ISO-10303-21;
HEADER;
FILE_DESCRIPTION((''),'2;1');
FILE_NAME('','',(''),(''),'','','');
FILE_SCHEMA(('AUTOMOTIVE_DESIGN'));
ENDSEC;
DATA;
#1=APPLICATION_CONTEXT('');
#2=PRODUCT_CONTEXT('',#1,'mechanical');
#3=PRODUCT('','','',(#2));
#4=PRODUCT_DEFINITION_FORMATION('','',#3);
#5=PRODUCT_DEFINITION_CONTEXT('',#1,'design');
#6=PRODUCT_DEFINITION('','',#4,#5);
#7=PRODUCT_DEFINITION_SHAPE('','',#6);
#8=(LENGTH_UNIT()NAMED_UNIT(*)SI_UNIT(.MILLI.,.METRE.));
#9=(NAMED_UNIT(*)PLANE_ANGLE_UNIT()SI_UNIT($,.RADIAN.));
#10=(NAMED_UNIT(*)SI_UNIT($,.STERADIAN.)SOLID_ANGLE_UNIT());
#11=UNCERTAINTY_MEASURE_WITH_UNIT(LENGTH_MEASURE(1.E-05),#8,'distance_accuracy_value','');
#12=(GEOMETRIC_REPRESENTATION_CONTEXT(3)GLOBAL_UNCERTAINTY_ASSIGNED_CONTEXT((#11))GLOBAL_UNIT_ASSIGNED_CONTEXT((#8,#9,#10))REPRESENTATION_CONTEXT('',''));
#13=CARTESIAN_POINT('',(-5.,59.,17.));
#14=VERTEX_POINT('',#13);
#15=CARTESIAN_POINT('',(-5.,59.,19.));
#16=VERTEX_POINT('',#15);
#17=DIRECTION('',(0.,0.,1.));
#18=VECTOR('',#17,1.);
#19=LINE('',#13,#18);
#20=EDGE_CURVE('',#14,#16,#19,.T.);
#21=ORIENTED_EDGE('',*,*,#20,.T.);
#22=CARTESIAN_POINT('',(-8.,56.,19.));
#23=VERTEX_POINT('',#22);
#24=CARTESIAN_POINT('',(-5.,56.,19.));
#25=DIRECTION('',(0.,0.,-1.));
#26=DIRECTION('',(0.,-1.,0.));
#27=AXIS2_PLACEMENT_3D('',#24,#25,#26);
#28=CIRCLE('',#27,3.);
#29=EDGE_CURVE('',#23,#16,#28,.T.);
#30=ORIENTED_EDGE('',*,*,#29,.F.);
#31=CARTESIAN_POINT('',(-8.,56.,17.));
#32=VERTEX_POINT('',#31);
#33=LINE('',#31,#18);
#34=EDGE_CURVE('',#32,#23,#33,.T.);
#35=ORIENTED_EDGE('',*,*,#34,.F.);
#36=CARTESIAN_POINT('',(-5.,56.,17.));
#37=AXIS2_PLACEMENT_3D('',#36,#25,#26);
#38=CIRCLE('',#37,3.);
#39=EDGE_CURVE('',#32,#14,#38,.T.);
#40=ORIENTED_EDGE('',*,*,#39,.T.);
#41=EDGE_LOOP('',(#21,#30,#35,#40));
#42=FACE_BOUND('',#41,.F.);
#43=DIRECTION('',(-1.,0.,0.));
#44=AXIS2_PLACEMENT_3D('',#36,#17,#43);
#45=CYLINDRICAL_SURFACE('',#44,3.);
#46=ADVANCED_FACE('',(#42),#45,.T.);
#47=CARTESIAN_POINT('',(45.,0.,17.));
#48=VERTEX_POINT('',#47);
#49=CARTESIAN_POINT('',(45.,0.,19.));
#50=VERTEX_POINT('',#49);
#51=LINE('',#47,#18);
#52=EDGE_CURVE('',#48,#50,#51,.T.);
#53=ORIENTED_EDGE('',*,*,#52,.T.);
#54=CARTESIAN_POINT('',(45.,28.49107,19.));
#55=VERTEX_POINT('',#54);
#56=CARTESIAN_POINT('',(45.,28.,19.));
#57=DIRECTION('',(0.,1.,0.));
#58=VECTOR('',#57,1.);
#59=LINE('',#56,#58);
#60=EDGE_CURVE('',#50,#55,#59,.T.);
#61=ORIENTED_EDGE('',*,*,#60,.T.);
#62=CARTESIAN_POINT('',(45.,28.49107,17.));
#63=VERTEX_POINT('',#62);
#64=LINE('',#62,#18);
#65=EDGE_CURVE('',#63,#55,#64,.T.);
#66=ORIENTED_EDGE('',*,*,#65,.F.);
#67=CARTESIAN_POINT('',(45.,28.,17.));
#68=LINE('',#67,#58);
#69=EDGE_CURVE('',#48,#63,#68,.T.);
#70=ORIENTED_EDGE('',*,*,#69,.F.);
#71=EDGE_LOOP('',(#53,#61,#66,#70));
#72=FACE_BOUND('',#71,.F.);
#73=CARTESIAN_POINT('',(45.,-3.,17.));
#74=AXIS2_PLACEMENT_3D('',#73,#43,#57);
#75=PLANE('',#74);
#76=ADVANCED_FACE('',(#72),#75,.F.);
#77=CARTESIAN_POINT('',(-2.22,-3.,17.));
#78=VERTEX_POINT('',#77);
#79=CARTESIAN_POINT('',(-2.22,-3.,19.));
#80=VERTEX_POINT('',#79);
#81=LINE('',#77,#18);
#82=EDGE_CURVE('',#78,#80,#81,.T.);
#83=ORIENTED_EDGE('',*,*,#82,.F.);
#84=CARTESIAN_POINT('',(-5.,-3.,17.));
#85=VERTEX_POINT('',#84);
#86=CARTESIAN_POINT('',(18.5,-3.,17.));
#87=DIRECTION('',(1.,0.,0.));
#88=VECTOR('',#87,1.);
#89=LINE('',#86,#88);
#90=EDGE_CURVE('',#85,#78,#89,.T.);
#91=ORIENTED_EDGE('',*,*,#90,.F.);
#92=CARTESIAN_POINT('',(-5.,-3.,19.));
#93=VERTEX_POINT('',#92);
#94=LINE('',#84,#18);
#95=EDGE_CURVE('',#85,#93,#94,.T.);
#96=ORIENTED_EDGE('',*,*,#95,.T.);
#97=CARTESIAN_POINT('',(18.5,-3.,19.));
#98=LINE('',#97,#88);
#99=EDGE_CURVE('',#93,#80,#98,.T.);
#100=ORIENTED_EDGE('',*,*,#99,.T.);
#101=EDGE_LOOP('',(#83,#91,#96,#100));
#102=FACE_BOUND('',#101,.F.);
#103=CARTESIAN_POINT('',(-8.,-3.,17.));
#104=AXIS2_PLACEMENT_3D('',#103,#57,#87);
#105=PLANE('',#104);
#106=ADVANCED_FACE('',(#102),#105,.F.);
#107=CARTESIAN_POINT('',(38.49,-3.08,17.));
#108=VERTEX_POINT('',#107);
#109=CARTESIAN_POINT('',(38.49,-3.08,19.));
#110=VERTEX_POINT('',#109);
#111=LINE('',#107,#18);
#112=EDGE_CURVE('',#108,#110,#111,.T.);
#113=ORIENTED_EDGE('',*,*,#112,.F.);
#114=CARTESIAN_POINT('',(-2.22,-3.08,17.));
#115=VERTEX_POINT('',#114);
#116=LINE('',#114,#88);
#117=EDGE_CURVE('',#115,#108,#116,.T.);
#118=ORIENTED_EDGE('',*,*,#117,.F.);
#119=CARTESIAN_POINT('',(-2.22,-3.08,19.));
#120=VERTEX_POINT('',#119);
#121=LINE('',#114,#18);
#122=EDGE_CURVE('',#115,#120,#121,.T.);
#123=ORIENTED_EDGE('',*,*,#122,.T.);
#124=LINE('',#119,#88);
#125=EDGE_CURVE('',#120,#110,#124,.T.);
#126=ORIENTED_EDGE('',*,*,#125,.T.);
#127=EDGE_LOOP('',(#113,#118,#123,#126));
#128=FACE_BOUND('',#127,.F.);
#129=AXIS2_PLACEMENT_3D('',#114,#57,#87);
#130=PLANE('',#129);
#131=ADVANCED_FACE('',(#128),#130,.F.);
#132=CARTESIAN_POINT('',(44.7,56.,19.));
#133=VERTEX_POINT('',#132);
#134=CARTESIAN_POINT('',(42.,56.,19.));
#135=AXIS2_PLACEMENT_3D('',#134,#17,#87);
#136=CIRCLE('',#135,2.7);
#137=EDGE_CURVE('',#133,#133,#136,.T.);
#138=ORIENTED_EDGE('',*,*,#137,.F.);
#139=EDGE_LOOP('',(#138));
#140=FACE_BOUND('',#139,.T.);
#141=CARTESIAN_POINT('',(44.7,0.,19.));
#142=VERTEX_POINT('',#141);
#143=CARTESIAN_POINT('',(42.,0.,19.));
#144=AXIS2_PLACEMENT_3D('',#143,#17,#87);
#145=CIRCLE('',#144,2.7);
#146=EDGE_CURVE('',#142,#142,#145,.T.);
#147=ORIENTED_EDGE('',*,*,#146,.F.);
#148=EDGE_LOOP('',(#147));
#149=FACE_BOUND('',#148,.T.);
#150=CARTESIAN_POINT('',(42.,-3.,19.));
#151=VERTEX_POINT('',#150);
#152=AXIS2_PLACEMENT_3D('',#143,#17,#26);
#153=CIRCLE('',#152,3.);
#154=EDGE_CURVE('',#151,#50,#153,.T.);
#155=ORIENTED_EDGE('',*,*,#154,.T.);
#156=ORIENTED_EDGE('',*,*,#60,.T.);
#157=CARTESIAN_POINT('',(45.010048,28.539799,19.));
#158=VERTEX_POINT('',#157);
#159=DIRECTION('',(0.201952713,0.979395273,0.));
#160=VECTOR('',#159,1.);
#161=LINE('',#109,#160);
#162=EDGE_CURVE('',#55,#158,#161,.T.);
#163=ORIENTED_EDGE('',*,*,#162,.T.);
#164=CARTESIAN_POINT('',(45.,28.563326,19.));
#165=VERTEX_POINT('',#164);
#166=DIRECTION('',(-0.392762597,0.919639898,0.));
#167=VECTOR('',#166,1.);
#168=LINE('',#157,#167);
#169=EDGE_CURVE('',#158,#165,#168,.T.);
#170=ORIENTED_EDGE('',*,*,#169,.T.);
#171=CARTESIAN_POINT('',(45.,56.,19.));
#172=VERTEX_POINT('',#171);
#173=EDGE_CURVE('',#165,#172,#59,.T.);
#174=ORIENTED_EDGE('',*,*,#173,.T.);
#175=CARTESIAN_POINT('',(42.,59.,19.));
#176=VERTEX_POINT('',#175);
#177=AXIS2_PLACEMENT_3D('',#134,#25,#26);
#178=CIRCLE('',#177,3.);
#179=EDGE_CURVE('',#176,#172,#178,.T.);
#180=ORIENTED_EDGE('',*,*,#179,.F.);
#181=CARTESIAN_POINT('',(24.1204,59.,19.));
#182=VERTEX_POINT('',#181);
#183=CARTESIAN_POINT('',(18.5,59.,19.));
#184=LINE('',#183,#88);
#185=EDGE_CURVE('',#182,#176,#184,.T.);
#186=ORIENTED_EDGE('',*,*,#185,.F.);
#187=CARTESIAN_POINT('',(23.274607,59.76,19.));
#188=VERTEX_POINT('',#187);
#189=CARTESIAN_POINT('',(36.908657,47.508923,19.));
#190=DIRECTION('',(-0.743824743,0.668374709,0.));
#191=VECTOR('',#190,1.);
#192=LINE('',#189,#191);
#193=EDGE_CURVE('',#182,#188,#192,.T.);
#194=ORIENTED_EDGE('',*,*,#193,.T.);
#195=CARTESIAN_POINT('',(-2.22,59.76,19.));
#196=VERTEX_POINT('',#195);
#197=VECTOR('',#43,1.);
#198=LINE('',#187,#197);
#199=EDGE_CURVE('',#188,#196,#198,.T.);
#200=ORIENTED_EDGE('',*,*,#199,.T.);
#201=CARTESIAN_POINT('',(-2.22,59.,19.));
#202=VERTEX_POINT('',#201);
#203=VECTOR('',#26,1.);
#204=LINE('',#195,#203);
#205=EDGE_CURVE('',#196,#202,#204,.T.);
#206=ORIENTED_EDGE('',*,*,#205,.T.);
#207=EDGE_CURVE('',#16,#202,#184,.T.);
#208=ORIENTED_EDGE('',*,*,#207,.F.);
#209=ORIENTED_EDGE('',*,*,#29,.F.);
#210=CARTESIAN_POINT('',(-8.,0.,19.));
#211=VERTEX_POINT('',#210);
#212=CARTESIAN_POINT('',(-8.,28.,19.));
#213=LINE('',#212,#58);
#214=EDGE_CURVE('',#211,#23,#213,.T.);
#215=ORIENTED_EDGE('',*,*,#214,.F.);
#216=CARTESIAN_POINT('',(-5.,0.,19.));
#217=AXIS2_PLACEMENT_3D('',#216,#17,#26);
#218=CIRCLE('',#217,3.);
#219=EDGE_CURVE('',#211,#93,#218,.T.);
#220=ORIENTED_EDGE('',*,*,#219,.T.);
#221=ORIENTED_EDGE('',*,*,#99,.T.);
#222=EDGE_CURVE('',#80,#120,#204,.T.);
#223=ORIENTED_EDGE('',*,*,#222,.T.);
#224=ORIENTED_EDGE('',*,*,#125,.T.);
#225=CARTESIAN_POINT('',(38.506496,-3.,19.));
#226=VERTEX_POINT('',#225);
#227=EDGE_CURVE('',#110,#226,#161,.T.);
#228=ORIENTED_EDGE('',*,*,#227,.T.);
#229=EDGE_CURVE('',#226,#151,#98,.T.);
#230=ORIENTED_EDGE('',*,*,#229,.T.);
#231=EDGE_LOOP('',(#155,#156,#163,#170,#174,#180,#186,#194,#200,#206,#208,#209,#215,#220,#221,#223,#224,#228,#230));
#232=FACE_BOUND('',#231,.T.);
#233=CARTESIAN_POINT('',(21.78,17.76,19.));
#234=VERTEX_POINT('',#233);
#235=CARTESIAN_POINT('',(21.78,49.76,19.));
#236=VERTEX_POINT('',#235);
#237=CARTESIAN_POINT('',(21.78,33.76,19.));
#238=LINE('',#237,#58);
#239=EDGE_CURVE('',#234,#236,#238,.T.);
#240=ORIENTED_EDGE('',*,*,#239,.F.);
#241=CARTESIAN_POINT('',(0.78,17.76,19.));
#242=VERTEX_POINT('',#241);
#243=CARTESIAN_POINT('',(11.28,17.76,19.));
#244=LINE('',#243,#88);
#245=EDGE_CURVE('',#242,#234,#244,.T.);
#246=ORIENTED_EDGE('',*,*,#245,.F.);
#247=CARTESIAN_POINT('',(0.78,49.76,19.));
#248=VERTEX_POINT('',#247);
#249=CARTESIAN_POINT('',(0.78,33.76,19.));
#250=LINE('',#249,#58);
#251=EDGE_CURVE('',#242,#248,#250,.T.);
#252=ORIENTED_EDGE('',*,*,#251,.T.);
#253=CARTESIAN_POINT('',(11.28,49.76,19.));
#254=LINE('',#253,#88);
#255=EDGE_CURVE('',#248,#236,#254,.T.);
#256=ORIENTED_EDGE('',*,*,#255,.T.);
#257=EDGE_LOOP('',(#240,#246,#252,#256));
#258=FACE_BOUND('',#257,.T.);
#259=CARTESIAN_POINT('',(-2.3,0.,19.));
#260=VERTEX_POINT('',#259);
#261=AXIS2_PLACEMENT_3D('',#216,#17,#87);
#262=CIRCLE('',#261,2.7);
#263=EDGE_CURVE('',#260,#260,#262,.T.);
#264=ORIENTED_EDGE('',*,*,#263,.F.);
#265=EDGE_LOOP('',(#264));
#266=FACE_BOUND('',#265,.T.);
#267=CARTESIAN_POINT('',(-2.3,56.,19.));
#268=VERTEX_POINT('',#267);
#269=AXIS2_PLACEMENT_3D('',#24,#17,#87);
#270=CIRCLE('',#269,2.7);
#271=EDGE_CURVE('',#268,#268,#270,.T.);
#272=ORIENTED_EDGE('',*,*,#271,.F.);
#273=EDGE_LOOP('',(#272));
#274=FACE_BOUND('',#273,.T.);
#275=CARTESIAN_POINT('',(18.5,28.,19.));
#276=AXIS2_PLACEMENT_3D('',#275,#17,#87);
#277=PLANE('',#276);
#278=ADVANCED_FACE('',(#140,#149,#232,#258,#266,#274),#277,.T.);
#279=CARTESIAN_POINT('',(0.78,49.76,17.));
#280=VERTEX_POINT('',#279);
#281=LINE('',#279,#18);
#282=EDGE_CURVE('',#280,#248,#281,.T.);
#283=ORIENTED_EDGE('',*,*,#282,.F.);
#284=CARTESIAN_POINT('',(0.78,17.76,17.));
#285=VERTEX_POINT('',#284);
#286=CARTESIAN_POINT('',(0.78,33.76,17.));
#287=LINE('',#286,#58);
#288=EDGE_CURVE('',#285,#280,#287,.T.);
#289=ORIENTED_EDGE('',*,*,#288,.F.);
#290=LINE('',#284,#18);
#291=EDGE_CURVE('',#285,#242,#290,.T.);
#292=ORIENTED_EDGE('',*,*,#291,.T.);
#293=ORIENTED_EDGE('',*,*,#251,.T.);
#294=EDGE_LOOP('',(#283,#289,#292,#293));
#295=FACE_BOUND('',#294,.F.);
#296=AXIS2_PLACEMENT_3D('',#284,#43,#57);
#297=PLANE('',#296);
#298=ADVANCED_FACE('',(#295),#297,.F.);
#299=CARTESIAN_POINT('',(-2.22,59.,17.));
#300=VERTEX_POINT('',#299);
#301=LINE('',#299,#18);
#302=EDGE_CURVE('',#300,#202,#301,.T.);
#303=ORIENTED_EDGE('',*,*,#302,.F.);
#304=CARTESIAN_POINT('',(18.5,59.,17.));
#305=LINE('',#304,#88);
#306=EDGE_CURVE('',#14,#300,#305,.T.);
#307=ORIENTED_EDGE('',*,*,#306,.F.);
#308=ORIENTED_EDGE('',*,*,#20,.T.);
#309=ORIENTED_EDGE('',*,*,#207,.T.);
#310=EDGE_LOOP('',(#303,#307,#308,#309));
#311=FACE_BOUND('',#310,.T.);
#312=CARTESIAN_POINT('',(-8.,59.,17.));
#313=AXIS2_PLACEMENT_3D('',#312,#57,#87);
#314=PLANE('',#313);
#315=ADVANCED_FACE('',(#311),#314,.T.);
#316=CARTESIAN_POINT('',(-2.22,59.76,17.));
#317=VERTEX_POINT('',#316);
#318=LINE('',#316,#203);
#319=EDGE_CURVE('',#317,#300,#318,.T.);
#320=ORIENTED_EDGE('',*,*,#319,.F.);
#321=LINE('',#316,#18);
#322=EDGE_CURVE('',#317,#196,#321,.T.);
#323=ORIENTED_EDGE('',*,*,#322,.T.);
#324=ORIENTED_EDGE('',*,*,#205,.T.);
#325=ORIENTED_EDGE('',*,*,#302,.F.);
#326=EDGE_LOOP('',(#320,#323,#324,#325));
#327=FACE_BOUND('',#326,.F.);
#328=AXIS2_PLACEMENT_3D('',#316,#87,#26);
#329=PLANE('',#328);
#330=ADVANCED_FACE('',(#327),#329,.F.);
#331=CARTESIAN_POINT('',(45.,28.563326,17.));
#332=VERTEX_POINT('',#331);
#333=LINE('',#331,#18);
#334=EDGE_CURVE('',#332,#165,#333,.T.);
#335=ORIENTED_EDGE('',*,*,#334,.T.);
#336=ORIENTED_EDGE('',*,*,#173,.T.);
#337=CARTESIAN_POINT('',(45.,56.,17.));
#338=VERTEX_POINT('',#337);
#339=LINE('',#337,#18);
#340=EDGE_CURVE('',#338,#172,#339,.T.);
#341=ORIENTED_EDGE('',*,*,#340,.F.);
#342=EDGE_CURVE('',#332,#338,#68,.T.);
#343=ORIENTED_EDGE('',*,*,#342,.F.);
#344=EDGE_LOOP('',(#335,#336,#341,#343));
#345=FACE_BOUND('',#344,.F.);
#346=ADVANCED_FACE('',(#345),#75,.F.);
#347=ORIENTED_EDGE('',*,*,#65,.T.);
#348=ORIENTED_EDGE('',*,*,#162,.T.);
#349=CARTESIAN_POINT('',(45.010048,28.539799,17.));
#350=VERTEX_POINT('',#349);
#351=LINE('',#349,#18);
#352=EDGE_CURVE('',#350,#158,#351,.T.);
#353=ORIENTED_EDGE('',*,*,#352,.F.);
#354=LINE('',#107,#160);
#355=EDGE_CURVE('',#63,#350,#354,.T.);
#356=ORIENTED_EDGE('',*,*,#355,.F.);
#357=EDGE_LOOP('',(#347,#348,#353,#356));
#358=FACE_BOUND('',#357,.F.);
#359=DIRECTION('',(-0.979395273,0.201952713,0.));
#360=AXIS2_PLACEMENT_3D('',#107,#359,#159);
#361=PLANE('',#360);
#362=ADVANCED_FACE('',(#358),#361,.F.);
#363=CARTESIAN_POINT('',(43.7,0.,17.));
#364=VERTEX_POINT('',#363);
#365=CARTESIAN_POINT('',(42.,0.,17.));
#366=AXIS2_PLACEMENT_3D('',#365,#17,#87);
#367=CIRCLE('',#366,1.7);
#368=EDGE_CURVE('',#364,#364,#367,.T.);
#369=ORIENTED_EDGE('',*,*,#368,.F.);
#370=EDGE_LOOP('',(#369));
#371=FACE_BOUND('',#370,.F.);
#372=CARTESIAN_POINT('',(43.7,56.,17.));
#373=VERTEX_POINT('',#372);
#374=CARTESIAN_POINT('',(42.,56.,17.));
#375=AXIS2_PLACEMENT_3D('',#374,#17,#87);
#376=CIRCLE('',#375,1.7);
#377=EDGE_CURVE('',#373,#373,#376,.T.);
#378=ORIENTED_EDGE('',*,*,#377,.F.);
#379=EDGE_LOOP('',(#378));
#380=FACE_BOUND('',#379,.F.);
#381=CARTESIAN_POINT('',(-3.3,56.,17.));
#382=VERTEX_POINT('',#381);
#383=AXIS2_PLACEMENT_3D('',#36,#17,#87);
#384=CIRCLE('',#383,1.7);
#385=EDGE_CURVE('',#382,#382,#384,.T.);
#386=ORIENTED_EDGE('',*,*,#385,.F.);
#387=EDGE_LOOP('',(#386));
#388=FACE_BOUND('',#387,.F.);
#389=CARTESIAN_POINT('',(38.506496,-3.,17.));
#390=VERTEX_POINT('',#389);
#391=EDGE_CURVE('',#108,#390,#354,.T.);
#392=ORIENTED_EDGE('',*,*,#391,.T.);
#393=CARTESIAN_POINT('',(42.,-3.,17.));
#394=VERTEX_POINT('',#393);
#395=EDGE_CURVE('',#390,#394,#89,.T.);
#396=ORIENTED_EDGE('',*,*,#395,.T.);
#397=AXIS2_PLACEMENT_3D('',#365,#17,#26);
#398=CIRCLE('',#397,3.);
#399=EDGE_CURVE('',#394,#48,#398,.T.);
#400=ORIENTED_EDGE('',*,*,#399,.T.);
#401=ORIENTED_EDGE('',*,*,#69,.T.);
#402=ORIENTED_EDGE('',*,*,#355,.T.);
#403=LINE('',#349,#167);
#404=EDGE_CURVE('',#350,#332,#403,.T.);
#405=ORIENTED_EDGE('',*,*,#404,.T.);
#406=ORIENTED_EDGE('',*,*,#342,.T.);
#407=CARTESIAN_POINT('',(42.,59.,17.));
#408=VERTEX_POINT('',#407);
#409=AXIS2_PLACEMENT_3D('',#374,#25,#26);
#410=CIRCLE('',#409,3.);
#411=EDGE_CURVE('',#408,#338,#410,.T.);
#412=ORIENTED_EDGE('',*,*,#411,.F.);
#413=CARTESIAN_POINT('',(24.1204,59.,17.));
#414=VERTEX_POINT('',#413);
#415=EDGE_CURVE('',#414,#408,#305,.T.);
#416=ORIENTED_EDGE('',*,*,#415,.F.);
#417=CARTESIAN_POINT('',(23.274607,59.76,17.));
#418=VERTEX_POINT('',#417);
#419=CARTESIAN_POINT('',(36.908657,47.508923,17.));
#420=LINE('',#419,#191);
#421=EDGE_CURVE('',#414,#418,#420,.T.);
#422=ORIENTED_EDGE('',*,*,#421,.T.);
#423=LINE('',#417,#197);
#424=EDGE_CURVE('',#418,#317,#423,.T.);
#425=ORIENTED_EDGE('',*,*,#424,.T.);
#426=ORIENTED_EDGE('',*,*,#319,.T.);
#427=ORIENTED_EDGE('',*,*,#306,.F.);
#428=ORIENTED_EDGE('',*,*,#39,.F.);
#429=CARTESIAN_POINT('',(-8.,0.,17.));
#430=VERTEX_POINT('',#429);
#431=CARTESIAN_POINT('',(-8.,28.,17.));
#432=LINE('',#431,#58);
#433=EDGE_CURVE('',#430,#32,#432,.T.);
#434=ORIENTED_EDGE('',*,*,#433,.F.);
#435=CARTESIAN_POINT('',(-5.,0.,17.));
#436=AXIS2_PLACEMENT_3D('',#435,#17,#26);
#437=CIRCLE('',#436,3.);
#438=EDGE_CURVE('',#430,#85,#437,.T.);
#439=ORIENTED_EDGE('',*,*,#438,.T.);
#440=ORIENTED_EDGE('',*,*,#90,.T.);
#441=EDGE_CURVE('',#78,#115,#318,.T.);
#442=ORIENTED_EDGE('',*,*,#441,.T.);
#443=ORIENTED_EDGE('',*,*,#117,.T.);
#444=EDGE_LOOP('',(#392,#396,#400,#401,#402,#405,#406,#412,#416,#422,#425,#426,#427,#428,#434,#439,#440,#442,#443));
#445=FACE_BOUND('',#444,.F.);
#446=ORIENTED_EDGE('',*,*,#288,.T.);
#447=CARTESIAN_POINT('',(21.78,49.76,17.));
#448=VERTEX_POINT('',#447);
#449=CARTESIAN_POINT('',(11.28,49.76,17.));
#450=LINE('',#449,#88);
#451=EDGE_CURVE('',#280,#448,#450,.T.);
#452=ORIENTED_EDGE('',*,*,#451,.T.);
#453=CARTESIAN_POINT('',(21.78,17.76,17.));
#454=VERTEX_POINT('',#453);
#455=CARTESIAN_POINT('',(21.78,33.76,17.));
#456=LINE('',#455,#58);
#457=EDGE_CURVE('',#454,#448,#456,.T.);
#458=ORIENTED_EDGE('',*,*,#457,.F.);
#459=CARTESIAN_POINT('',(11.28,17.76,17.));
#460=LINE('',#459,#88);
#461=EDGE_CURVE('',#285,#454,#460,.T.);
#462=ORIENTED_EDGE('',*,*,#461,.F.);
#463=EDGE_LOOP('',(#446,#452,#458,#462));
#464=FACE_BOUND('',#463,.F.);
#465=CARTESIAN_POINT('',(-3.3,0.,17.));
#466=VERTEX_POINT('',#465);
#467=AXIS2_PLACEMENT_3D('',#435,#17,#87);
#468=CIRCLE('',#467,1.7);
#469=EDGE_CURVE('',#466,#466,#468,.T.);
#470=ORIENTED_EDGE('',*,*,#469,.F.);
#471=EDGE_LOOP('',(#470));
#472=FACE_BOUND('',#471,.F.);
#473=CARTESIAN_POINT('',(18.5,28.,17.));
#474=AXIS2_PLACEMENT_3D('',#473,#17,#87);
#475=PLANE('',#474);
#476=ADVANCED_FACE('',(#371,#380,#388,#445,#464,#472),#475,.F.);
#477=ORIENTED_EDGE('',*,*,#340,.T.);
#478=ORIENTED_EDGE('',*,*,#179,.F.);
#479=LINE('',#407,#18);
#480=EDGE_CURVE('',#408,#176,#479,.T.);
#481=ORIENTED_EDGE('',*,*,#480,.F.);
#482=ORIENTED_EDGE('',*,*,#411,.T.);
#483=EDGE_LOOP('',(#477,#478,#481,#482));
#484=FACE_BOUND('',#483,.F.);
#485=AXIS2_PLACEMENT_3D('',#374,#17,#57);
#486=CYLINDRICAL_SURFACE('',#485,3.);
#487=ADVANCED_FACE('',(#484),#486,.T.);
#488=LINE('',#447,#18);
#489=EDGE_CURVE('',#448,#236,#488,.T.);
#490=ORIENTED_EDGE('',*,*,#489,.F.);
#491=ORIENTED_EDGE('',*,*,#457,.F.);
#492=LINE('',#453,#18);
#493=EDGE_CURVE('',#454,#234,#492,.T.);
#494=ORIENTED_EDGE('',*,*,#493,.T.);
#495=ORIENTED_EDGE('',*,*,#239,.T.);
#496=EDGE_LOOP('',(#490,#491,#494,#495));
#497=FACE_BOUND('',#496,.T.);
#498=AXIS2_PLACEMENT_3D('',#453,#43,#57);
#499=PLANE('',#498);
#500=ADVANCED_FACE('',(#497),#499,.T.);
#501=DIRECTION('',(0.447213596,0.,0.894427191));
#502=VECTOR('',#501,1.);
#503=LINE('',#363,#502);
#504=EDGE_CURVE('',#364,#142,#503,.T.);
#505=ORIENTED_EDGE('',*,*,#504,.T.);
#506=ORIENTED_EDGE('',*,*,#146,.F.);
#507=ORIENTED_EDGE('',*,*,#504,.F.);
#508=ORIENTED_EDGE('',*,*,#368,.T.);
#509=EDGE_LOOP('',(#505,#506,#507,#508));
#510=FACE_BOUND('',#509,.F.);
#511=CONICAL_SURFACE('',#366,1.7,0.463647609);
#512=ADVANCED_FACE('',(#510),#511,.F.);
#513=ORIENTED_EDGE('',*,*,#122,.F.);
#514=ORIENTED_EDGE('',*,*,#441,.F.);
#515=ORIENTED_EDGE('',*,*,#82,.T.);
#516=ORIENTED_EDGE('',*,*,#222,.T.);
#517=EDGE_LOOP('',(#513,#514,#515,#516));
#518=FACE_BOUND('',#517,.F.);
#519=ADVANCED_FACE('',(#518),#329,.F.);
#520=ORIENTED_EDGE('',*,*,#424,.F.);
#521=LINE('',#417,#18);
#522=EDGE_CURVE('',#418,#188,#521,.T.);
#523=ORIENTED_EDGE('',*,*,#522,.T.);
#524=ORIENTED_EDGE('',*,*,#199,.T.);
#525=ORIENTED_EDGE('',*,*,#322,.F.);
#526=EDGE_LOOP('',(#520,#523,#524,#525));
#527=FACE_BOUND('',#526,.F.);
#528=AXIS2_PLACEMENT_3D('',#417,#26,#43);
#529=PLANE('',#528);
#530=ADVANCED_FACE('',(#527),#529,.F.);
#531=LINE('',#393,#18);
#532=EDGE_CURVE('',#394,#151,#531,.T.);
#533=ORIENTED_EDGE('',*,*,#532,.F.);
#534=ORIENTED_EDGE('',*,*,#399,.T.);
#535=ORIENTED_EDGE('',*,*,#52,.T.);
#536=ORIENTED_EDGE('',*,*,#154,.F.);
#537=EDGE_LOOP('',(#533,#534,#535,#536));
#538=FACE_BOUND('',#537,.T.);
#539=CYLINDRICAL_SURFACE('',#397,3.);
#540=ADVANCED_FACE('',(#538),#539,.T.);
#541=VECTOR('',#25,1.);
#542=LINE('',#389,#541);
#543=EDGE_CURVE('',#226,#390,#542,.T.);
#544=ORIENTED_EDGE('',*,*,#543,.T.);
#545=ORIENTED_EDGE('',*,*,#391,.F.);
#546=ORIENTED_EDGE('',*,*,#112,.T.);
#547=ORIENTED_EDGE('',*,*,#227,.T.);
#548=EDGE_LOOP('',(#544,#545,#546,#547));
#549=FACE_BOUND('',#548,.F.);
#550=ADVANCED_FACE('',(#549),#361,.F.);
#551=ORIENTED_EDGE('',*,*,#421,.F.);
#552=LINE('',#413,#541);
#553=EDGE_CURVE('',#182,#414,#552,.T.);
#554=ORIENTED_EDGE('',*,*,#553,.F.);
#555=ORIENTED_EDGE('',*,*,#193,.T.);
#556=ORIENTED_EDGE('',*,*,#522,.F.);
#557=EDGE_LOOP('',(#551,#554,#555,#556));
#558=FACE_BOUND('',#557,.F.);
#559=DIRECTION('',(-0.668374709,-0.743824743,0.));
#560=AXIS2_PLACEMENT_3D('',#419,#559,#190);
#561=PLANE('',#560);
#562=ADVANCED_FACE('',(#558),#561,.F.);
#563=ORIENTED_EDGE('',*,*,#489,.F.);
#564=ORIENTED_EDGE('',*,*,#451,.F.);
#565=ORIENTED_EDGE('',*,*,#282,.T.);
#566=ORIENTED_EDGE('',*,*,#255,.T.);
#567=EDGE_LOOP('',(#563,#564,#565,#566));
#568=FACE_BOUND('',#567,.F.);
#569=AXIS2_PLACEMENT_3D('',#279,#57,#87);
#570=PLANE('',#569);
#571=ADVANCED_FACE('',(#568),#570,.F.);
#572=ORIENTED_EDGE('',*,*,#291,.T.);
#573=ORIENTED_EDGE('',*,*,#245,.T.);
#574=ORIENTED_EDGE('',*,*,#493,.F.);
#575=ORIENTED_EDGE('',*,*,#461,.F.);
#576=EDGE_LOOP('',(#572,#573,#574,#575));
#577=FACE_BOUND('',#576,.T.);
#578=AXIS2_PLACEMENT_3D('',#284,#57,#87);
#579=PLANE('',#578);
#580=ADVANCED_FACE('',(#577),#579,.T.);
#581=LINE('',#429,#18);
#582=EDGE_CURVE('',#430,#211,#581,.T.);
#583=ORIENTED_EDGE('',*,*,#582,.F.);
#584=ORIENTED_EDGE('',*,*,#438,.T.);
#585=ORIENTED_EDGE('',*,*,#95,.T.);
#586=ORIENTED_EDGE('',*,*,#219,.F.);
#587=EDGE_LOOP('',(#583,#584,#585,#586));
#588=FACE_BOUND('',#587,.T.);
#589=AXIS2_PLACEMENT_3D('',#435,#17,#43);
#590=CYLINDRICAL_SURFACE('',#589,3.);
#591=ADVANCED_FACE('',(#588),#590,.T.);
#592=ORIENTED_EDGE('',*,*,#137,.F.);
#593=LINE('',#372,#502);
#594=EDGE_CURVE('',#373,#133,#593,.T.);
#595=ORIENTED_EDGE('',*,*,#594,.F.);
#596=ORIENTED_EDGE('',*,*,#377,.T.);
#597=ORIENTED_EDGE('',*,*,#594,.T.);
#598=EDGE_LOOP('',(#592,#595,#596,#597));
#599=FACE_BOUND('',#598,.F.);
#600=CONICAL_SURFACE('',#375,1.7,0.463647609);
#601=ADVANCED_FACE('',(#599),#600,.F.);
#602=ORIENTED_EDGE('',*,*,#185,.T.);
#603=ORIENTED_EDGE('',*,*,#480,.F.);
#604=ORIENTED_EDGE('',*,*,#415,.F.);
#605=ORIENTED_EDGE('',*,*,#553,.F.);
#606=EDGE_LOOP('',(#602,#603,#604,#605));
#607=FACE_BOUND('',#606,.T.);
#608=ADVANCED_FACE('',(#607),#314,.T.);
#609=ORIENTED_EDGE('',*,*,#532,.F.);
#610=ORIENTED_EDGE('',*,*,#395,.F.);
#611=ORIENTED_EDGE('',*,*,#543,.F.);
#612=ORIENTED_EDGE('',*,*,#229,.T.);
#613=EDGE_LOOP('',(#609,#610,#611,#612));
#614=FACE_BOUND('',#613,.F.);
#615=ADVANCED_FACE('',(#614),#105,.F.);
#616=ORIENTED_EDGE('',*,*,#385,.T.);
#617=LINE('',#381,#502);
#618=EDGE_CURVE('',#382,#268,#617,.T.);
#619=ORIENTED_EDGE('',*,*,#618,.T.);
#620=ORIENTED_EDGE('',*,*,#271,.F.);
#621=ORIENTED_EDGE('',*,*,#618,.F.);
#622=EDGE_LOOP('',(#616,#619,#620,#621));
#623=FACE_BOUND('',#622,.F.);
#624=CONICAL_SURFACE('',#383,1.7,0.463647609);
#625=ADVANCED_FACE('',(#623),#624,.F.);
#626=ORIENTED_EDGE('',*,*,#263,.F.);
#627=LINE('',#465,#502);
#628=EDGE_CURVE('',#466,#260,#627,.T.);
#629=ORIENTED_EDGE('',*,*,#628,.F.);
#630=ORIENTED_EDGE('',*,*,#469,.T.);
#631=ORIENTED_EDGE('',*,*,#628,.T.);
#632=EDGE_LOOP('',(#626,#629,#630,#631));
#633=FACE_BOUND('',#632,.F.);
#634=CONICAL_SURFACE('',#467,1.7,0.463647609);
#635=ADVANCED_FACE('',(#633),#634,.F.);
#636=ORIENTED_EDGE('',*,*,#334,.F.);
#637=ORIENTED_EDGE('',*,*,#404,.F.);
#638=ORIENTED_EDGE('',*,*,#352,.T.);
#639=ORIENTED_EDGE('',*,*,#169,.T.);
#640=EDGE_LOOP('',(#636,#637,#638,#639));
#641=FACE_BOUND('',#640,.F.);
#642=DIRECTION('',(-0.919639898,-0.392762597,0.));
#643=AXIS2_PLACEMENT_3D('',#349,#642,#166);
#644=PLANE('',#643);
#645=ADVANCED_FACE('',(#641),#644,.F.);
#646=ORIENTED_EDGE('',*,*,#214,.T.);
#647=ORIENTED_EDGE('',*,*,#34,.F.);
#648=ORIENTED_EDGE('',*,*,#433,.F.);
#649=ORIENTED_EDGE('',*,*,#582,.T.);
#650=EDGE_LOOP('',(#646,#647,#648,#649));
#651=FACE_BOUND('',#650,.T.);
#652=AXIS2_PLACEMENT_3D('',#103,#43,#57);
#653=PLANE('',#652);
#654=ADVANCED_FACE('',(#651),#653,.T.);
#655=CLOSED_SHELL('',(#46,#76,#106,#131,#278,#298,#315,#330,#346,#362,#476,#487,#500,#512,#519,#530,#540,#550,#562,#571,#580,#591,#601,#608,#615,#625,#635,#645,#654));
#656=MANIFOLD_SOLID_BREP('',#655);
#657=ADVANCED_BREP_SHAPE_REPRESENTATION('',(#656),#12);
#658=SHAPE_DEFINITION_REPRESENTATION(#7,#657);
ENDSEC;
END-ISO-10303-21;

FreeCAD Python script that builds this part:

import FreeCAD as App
import Part
import Sketcher

V = App.Vector
Q = App.Units.Quantity


def edges_at(feature, points):
    """Names of the edges that pass closest to the given points."""
    edges = feature.Shape.Edges
    near = lambda p: min(range(len(edges)), key=lambda i: edges[i].distToShape(Part.Vertex(*p))[0])
    return sorted({f"Edge{near(p) + 1}" for p in points})

doc = App.newDocument("Part")
body = doc.addObject("PartDesign::Body", "Body")

# Sketch on XZ plane
sketch1 = doc.addObject("Sketcher::SketchObject", "Sketch")
body.addObject(sketch1)
sketch1.AttachmentSupport = (doc.XZ_Plane, [""])
sketch1.MapMode = "FlatFace"
sketch1.addGeometry(Part.LineSegment(V(0, 0, 0), V(1.7, 0, 0)), False)
sketch1.addGeometry(Part.LineSegment(V(1.7, 0, 0), V(3.4, 3.4, 0)), False)
sketch1.addGeometry(Part.LineSegment(V(3.4, 3.4, 0), V(0, 3.4, 0)), False)
sketch1.addGeometry(Part.LineSegment(V(0, 3.4, 0), V(0, 0, 0)), False)
sketch1.addConstraint(Sketcher.Constraint("Coincident", 0, 2, 1, 1))
sketch1.addConstraint(Sketcher.Constraint("Coincident", 1, 2, 2, 1))
sketch1.addConstraint(Sketcher.Constraint("Coincident", 2, 2, 3, 1))
sketch1.addConstraint(Sketcher.Constraint("Coincident", 3, 2, 0, 1))
sketch1.addConstraint(Sketcher.Constraint("Horizontal", 0))
sketch1.addConstraint(Sketcher.Constraint("Horizontal", 2))
sketch1.addConstraint(Sketcher.Constraint("Vertical", 3))
sketch1.addConstraint(Sketcher.Constraint("Coincident", 3, 2, -1, 1))
sketch1.addConstraint(Sketcher.Constraint("Equal", 2, 3))
sketch1.addConstraint(Sketcher.Constraint("DistanceX", 0, 1, 0, 2, Q("1.7 mm")))
sketch1.addConstraint(Sketcher.Constraint("DistanceX", 2, 2, 2, 1, Q("3.4 mm")))
revolution = doc.addObject("PartDesign::Revolution", "Revolution")
body.addObject(revolution)
revolution.Profile = sketch1
revolution.ReferenceAxis = (sketch1, ["V_Axis"])
revolution.Angle = 360
body2 = doc.addObject("PartDesign::Body", "Body001")

# Sketch on XY plane
sketch2 = doc.addObject("Sketcher::SketchObject", "Sketch001")
body2.addObject(sketch2)
sketch2.AttachmentSupport = (doc.getObject("XY_Plane001"), [""])
sketch2.MapMode = "FlatFace"
sketch2.AttachmentOffset = App.Placement(V(0, 0, 3.4), App.Rotation())
sketch2.addGeometry(Part.Circle(V(0, 0, 0), V(0, 0, 1), 3.4), False)
sketch2.addConstraint(Sketcher.Constraint("Coincident", 0, 3, -1, 1))
sketch2.addConstraint(Sketcher.Constraint("Diameter", 0, Q("6.8 mm")))
pad1 = doc.addObject("PartDesign::Pad", "Pad")
body2.addObject(pad1)
pad1.Profile = sketch2
pad1.Length = 10
body3 = doc.addObject("PartDesign::Body", "Body002")

# Sketch on XY plane
sketch3 = doc.addObject("Sketcher::SketchObject", "Sketch002")
body3.addObject(sketch3)
sketch3.AttachmentSupport = (doc.getObject("XY_Plane002"), [""])
sketch3.MapMode = "FlatFace"
sketch3.AttachmentOffset = App.Placement(V(0, 0, -9.6), App.Rotation())
sketch3.addGeometry(Part.Circle(V(0, 0, 0), V(0, 0, 1), 1.7), False)
sketch3.addConstraint(Sketcher.Constraint("Coincident", 0, 3, -1, 1))
sketch3.addConstraint(Sketcher.Constraint("Diameter", 0, Q("3.4 mm")))
pad2 = doc.addObject("PartDesign::Pad", "Pad001")
body3.addObject(pad2)
pad2.Profile = sketch3
pad2.Length = 9.6
doc.recompute()

boolean = doc.addObject("PartDesign::Boolean", "Boolean")
body3.addObject(boolean)
boolean.Type = "Fuse"
boolean.addObjects([body])
doc.recompute()

boolean2 = doc.addObject("PartDesign::Boolean", "Boolean001")
body3.addObject(boolean2)
boolean2.Type = "Fuse"
boolean2.addObjects([body2])
body4 = doc.addObject("PartDesign::Body", "Body003")
doc.recompute()

body3.Placement = App.Placement(V(42, 56, 5), App.Rotation(V(0, 0, 1), 0))
boolean3 = doc.addObject("PartDesign::Boolean", "Boolean002")
body4.addObject(boolean3)
boolean3.Type = "Fuse"
boolean3.addObjects([body3])
body5 = doc.addObject("PartDesign::Body", "Body004")

# Sketch on XZ plane
sketch4 = doc.addObject("Sketcher::SketchObject", "Sketch003")
body5.addObject(sketch4)
sketch4.AttachmentSupport = (doc.getObject("XZ_Plane004"), [""])
sketch4.MapMode = "FlatFace"
sketch4.addGeometry(Part.LineSegment(V(0, 0, 0), V(1.7, 0, 0)), False)
sketch4.addGeometry(Part.LineSegment(V(1.7, 0, 0), V(3.4, 3.4, 0)), False)
sketch4.addGeometry(Part.LineSegment(V(3.4, 3.4, 0), V(0, 3.4, 0)), False)
sketch4.addGeometry(Part.LineSegment(V(0, 3.4, 0), V(0, 0, 0)), False)
sketch4.addConstraint(Sketcher.Constraint("Coincident", 0, 2, 1, 1))
sketch4.addConstraint(Sketcher.Constraint("Coincident", 1, 2, 2, 1))
sketch4.addConstraint(Sketcher.Constraint("Coincident", 2, 2, 3, 1))
sketch4.addConstraint(Sketcher.Constraint("Coincident", 3, 2, 0, 1))
sketch4.addConstraint(Sketcher.Constraint("Horizontal", 0))
sketch4.addConstraint(Sketcher.Constraint("Horizontal", 2))
sketch4.addConstraint(Sketcher.Constraint("Vertical", 3))
sketch4.addConstraint(Sketcher.Constraint("Coincident", 3, 2, -1, 1))
sketch4.addConstraint(Sketcher.Constraint("Equal", 2, 3))
sketch4.addConstraint(Sketcher.Constraint("DistanceX", 0, 1, 0, 2, Q("1.7 mm")))
sketch4.addConstraint(Sketcher.Constraint("DistanceX", 2, 2, 2, 1, Q("3.4 mm")))
revolution2 = doc.addObject("PartDesign::Revolution", "Revolution001")
body5.addObject(revolution2)
revolution2.Profile = sketch4
revolution2.ReferenceAxis = (sketch4, ["V_Axis"])
revolution2.Angle = 360
body6 = doc.addObject("PartDesign::Body", "Body005")

# Sketch on XY plane
sketch5 = doc.addObject("Sketcher::SketchObject", "Sketch004")
body6.addObject(sketch5)
sketch5.AttachmentSupport = (doc.getObject("XY_Plane005"), [""])
sketch5.MapMode = "FlatFace"
sketch5.AttachmentOffset = App.Placement(V(0, 0, 3.4), App.Rotation())
sketch5.addGeometry(Part.Circle(V(0, 0, 0), V(0, 0, 1), 3.4), False)
sketch5.addConstraint(Sketcher.Constraint("Coincident", 0, 3, -1, 1))
sketch5.addConstraint(Sketcher.Constraint("Diameter", 0, Q("6.8 mm")))
pad3 = doc.addObject("PartDesign::Pad", "Pad002")
body6.addObject(pad3)
pad3.Profile = sketch5
pad3.Length = 10
body7 = doc.addObject("PartDesign::Body", "Body006")

# Sketch on XY plane
sketch6 = doc.addObject("Sketcher::SketchObject", "Sketch005")
body7.addObject(sketch6)
sketch6.AttachmentSupport = (doc.getObject("XY_Plane006"), [""])
sketch6.MapMode = "FlatFace"
sketch6.AttachmentOffset = App.Placement(V(0, 0, -9.6), App.Rotation())
sketch6.addGeometry(Part.Circle(V(0, 0, 0), V(0, 0, 1), 1.7), False)
sketch6.addConstraint(Sketcher.Constraint("Coincident", 0, 3, -1, 1))
sketch6.addConstraint(Sketcher.Constraint("Diameter", 0, Q("3.4 mm")))
pad4 = doc.addObject("PartDesign::Pad", "Pad003")
body7.addObject(pad4)
pad4.Profile = sketch6
pad4.Length = 9.6
doc.recompute()

boolean4 = doc.addObject("PartDesign::Boolean", "Boolean003")
body7.addObject(boolean4)
boolean4.Type = "Fuse"
boolean4.addObjects([body5])
doc.recompute()

boolean5 = doc.addObject("PartDesign::Boolean", "Boolean004")
body7.addObject(boolean5)
boolean5.Type = "Fuse"
boolean5.addObjects([body6])
body8 = doc.addObject("PartDesign::Body", "Body007")
body8.AllowCompound = True
doc.recompute()

body7.Placement = App.Placement(V(42, 0, 5), App.Rotation(V(0, 0, 1), 0))
boolean6 = doc.addObject("PartDesign::Boolean", "Boolean005")
body8.addObject(boolean6)
boolean6.Type = "Fuse"
boolean6.addObjects([body7])
doc.recompute()

boolean7 = doc.addObject("PartDesign::Boolean", "Boolean006")
body8.addObject(boolean7)
boolean7.Type = "Fuse"
boolean7.addObjects([body4])
body9 = doc.addObject("PartDesign::Body", "Body008")

# Sketch on XZ plane
sketch7 = doc.addObject("Sketcher::SketchObject", "Sketch006")
body9.addObject(sketch7)
sketch7.AttachmentSupport = (doc.getObject("XZ_Plane008"), [""])
sketch7.MapMode = "FlatFace"
sketch7.addGeometry(Part.LineSegment(V(0, 0, 0), V(1.7, 0, 0)), False)
sketch7.addGeometry(Part.LineSegment(V(1.7, 0, 0), V(3.4, 3.4, 0)), False)
sketch7.addGeometry(Part.LineSegment(V(3.4, 3.4, 0), V(0, 3.4, 0)), False)
sketch7.addGeometry(Part.LineSegment(V(0, 3.4, 0), V(0, 0, 0)), False)
sketch7.addConstraint(Sketcher.Constraint("Coincident", 0, 2, 1, 1))
sketch7.addConstraint(Sketcher.Constraint("Coincident", 1, 2, 2, 1))
sketch7.addConstraint(Sketcher.Constraint("Coincident", 2, 2, 3, 1))
sketch7.addConstraint(Sketcher.Constraint("Coincident", 3, 2, 0, 1))
sketch7.addConstraint(Sketcher.Constraint("Horizontal", 0))
sketch7.addConstraint(Sketcher.Constraint("Horizontal", 2))
sketch7.addConstraint(Sketcher.Constraint("Vertical", 3))
sketch7.addConstraint(Sketcher.Constraint("Coincident", 3, 2, -1, 1))
sketch7.addConstraint(Sketcher.Constraint("Equal", 2, 3))
sketch7.addConstraint(Sketcher.Constraint("DistanceX", 0, 1, 0, 2, Q("1.7 mm")))
sketch7.addConstraint(Sketcher.Constraint("DistanceX", 2, 2, 2, 1, Q("3.4 mm")))
revolution3 = doc.addObject("PartDesign::Revolution", "Revolution002")
body9.addObject(revolution3)
revolution3.Profile = sketch7
revolution3.ReferenceAxis = (sketch7, ["V_Axis"])
revolution3.Angle = 360
body10 = doc.addObject("PartDesign::Body", "Body009")

# Sketch on XY plane
sketch8 = doc.addObject("Sketcher::SketchObject", "Sketch007")
body10.addObject(sketch8)
sketch8.AttachmentSupport = (doc.getObject("XY_Plane009"), [""])
sketch8.MapMode = "FlatFace"
sketch8.AttachmentOffset = App.Placement(V(0, 0, 3.4), App.Rotation())
sketch8.addGeometry(Part.Circle(V(0, 0, 0), V(0, 0, 1), 3.4), False)
sketch8.addConstraint(Sketcher.Constraint("Coincident", 0, 3, -1, 1))
sketch8.addConstraint(Sketcher.Constraint("Diameter", 0, Q("6.8 mm")))
pad5 = doc.addObject("PartDesign::Pad", "Pad004")
body10.addObject(pad5)
pad5.Profile = sketch8
pad5.Length = 10
body11 = doc.addObject("PartDesign::Body", "Body010")

# Sketch on XY plane
sketch9 = doc.addObject("Sketcher::SketchObject", "Sketch008")
body11.addObject(sketch9)
sketch9.AttachmentSupport = (doc.getObject("XY_Plane010"), [""])
sketch9.MapMode = "FlatFace"
sketch9.AttachmentOffset = App.Placement(V(0, 0, -9.6), App.Rotation())
sketch9.addGeometry(Part.Circle(V(0, 0, 0), V(0, 0, 1), 1.7), False)
sketch9.addConstraint(Sketcher.Constraint("Coincident", 0, 3, -1, 1))
sketch9.addConstraint(Sketcher.Constraint("Diameter", 0, Q("3.4 mm")))
pad6 = doc.addObject("PartDesign::Pad", "Pad005")
body11.addObject(pad6)
pad6.Profile = sketch9
pad6.Length = 9.6
doc.recompute()

boolean8 = doc.addObject("PartDesign::Boolean", "Boolean007")
body11.addObject(boolean8)
boolean8.Type = "Fuse"
boolean8.addObjects([body9])
doc.recompute()

boolean9 = doc.addObject("PartDesign::Boolean", "Boolean008")
body11.addObject(boolean9)
boolean9.Type = "Fuse"
boolean9.addObjects([body10])
body12 = doc.addObject("PartDesign::Body", "Body011")
doc.recompute()

body11.Placement = App.Placement(V(42, 56, 5), App.Rotation(V(0, 0, 1), 0))
boolean10 = doc.addObject("PartDesign::Boolean", "Boolean009")
body12.addObject(boolean10)
boolean10.Type = "Fuse"
boolean10.addObjects([body11])
body13 = doc.addObject("PartDesign::Body", "Body012")

# Sketch on XZ plane
sketch10 = doc.addObject("Sketcher::SketchObject", "Sketch009")
body13.addObject(sketch10)
sketch10.AttachmentSupport = (doc.getObject("XZ_Plane012"), [""])
sketch10.MapMode = "FlatFace"
sketch10.addGeometry(Part.LineSegment(V(0, 0, 0), V(1.7, 0, 0)), False)
sketch10.addGeometry(Part.LineSegment(V(1.7, 0, 0), V(3.4, 3.4, 0)), False)
sketch10.addGeometry(Part.LineSegment(V(3.4, 3.4, 0), V(0, 3.4, 0)), False)
sketch10.addGeometry(Part.LineSegment(V(0, 3.4, 0), V(0, 0, 0)), False)
sketch10.addConstraint(Sketcher.Constraint("Coincident", 0, 2, 1, 1))
sketch10.addConstraint(Sketcher.Constraint("Coincident", 1, 2, 2, 1))
sketch10.addConstraint(Sketcher.Constraint("Coincident", 2, 2, 3, 1))
sketch10.addConstraint(Sketcher.Constraint("Coincident", 3, 2, 0, 1))
sketch10.addConstraint(Sketcher.Constraint("Horizontal", 0))
sketch10.addConstraint(Sketcher.Constraint("Horizontal", 2))
sketch10.addConstraint(Sketcher.Constraint("Vertical", 3))
sketch10.addConstraint(Sketcher.Constraint("Coincident", 3, 2, -1, 1))
sketch10.addConstraint(Sketcher.Constraint("Equal", 2, 3))
sketch10.addConstraint(Sketcher.Constraint("DistanceX", 0, 1, 0, 2, Q("1.7 mm")))
sketch10.addConstraint(Sketcher.Constraint("DistanceX", 2, 2, 2, 1, Q("3.4 mm")))
revolution4 = doc.addObject("PartDesign::Revolution", "Revolution003")
body13.addObject(revolution4)
revolution4.Profile = sketch10
revolution4.ReferenceAxis = (sketch10, ["V_Axis"])
revolution4.Angle = 360
body14 = doc.addObject("PartDesign::Body", "Body013")

# Sketch on XY plane
sketch11 = doc.addObject("Sketcher::SketchObject", "Sketch010")
body14.addObject(sketch11)
sketch11.AttachmentSupport = (doc.getObject("XY_Plane013"), [""])
sketch11.MapMode = "FlatFace"
sketch11.AttachmentOffset = App.Placement(V(0, 0, 3.4), App.Rotation())
sketch11.addGeometry(Part.Circle(V(0, 0, 0), V(0, 0, 1), 3.4), False)
sketch11.addConstraint(Sketcher.Constraint("Coincident", 0, 3, -1, 1))
sketch11.addConstraint(Sketcher.Constraint("Diameter", 0, Q("6.8 mm")))
pad7 = doc.addObject("PartDesign::Pad", "Pad006")
body14.addObject(pad7)
pad7.Profile = sketch11
pad7.Length = 10
body15 = doc.addObject("PartDesign::Body", "Body014")

# Sketch on XY plane
sketch12 = doc.addObject("Sketcher::SketchObject", "Sketch011")
body15.addObject(sketch12)
sketch12.AttachmentSupport = (doc.getObject("XY_Plane014"), [""])
sketch12.MapMode = "FlatFace"
sketch12.AttachmentOffset = App.Placement(V(0, 0, -9.6), App.Rotation())
sketch12.addGeometry(Part.Circle(V(0, 0, 0), V(0, 0, 1), 1.7), False)
sketch12.addConstraint(Sketcher.Constraint("Coincident", 0, 3, -1, 1))
sketch12.addConstraint(Sketcher.Constraint("Diameter", 0, Q("3.4 mm")))
pad8 = doc.addObject("PartDesign::Pad", "Pad007")
body15.addObject(pad8)
pad8.Profile = sketch12
pad8.Length = 9.6
doc.recompute()

boolean11 = doc.addObject("PartDesign::Boolean", "Boolean010")
body15.addObject(boolean11)
boolean11.Type = "Fuse"
boolean11.addObjects([body13])
doc.recompute()

boolean12 = doc.addObject("PartDesign::Boolean", "Boolean011")
body15.addObject(boolean12)
boolean12.Type = "Fuse"
boolean12.addObjects([body14])
body16 = doc.addObject("PartDesign::Body", "Body015")
body16.AllowCompound = True
doc.recompute()

body15.Placement = App.Placement(V(42, 0, 5), App.Rotation(V(0, 0, 1), 0))
boolean13 = doc.addObject("PartDesign::Boolean", "Boolean012")
body16.addObject(boolean13)
boolean13.Type = "Fuse"
boolean13.addObjects([body15])
doc.recompute()

boolean14 = doc.addObject("PartDesign::Boolean", "Boolean013")
body16.addObject(boolean14)
boolean14.Type = "Fuse"
boolean14.addObjects([body12])
body17 = doc.addObject("PartDesign::Body", "Body016")
body17.AllowCompound = True
doc.recompute()

body16.Placement = App.Placement(V(-47, 0, 0), App.Rotation(V(0, 0, 1), 0))
boolean15 = doc.addObject("PartDesign::Boolean", "Boolean014")
body17.addObject(boolean15)
boolean15.Type = "Fuse"
boolean15.addObjects([body16])
doc.recompute()

boolean16 = doc.addObject("PartDesign::Boolean", "Boolean015")
body17.addObject(boolean16)
boolean16.Type = "Fuse"
boolean16.addObjects([body8])
body18 = doc.addObject("PartDesign::Body", "Body017")
body18.AllowCompound = True
doc.recompute()

body17.Placement = App.Placement(V(0, 0, 12), App.Rotation(V(0, 0, 1), 0))
boolean17 = doc.addObject("PartDesign::Boolean", "Boolean016")
body18.addObject(boolean17)
boolean17.Type = "Fuse"
boolean17.addObjects([body17])
body19 = doc.addObject("PartDesign::Body", "Body018")

# Sketch on XY plane
sketch13 = doc.addObject("Sketcher::SketchObject", "Sketch012")
body19.addObject(sketch13)
sketch13.AttachmentSupport = (doc.getObject("XY_Plane018"), [""])
sketch13.MapMode = "FlatFace"
sketch13.addGeometry(Part.LineSegment(V(-2.215162, 59.759811, 0), V(-2.215162, -3.075415, 0)), False)
sketch13.addGeometry(Part.LineSegment(V(-2.215162, -3.075415, 0), V(38.48941, -3.075415, 0)), False)
sketch13.addGeometry(Part.LineSegment(V(38.48941, -3.075415, 0), V(45.010048, 28.539799, 0)), False)
sketch13.addGeometry(Part.LineSegment(V(45.010048, 28.539799, 0), V(36.908657, 47.508923, 0)), False)
sketch13.addGeometry(Part.LineSegment(V(36.908657, 47.508923, 0), V(23.274607, 59.759811, 0)), False)
sketch13.addGeometry(Part.LineSegment(V(23.274607, 59.759811, 0), V(-2.215162, 59.759811, 0)), False)
sketch13.addConstraint(Sketcher.Constraint("Coincident", 0, 2, 1, 1))
sketch13.addConstraint(Sketcher.Constraint("Coincident", 1, 2, 2, 1))
sketch13.addConstraint(Sketcher.Constraint("Coincident", 2, 2, 3, 1))
sketch13.addConstraint(Sketcher.Constraint("Coincident", 3, 2, 4, 1))
sketch13.addConstraint(Sketcher.Constraint("Coincident", 4, 2, 5, 1))
sketch13.addConstraint(Sketcher.Constraint("Coincident", 5, 2, 0, 1))
sketch13.addConstraint(Sketcher.Constraint("Vertical", 0))
sketch13.addConstraint(Sketcher.Constraint("Horizontal", 1))
sketch13.addConstraint(Sketcher.Constraint("Horizontal", 5))
sketch13.addConstraint(Sketcher.Constraint("DistanceX", 5, 2, 5, 1, Q("25.489769 mm")))
sketch13.addConstraint(Sketcher.Constraint("DistanceY", -1, 1, 2, 2, Q("28.539799 mm")))
sketch13.addConstraint(Sketcher.Constraint("Distance", 2, Q("32.280652 mm")))
sketch13.addConstraint(Sketcher.Constraint("DistanceX", 1, 1, 1, 2, Q("40.704572 mm")))
sketch13.addConstraint(Sketcher.Constraint("DistanceY", 0, 2, 0, 1, Q("62.835226 mm")))
sketch13.addConstraint(Sketcher.Constraint("DistanceX", 0, 2, -1, 1, Q("2.215162 mm")))
sketch13.addConstraint(Sketcher.Constraint("DistanceY", -1, 1, 4, 2, Q("59.759811 mm")))
sketch13.addConstraint(Sketcher.Constraint("DistanceX", 3, 2, 2, 2, Q("8.101391 mm")))
sketch13.addConstraint(Sketcher.Constraint("DistanceY", 1, 2, 3, 2, Q("50.584338 mm")))
pad9 = doc.addObject("PartDesign::Pad", "Pad008")
body19.addObject(pad9)
pad9.Profile = sketch13
pad9.Length = 2
body20 = doc.addObject("PartDesign::Body", "Body019")
doc.recompute()

body19.Placement = App.Placement(V(0, 0, 20), App.Rotation(V(0, 0, 1), 0))
boolean18 = doc.addObject("PartDesign::Boolean", "Boolean017")
body20.addObject(boolean18)
boolean18.Type = "Fuse"
boolean18.addObjects([body19])
body21 = doc.addObject("PartDesign::Body", "Body020")
body21.AllowCompound = True

# Sketch on XY plane
sketch14 = doc.addObject("Sketcher::SketchObject", "Sketch013")
body21.addObject(sketch14)
sketch14.AttachmentSupport = (doc.getObject("XY_Plane020"), [""])
sketch14.MapMode = "FlatFace"
sketch14.AttachmentOffset = App.Placement(V(0, 0, 20), App.Rotation())
sketch14.addGeometry(Part.LineSegment(V(-8, 59, 0), V(-8, -3, 0)), False)
sketch14.addGeometry(Part.LineSegment(V(-8, -3, 0), V(45, -3, 0)), False)
sketch14.addGeometry(Part.LineSegment(V(45, -3, 0), V(45, 59, 0)), False)
sketch14.addGeometry(Part.LineSegment(V(45, 59, 0), V(-8, 59, 0)), False)
sketch14.addConstraint(Sketcher.Constraint("Coincident", 0, 2, 1, 1))
sketch14.addConstraint(Sketcher.Constraint("Coincident", 1, 2, 2, 1))
sketch14.addConstraint(Sketcher.Constraint("Coincident", 2, 2, 3, 1))
sketch14.addConstraint(Sketcher.Constraint("Coincident", 3, 2, 0, 1))
sketch14.addConstraint(Sketcher.Constraint("Vertical", 0))
sketch14.addConstraint(Sketcher.Constraint("Horizontal", 1))
sketch14.addConstraint(Sketcher.Constraint("Vertical", 2))
sketch14.addConstraint(Sketcher.Constraint("Horizontal", 3))
sketch14.addConstraint(Sketcher.Constraint("DistanceX", 1, 1, 1, 2, Q("53 mm")))
sketch14.addConstraint(Sketcher.Constraint("DistanceY", 0, 2, 0, 1, Q("62 mm")))
sketch14.addConstraint(Sketcher.Constraint("DistanceX", 0, 2, -1, 1, Q("8 mm")))
sketch14.addConstraint(Sketcher.Constraint("DistanceY", 0, 2, -1, 1, Q("3 mm")))
pad10 = doc.addObject("PartDesign::Pad", "Pad009")
body21.addObject(pad10)
pad10.Profile = sketch14
pad10.Length = 2
doc.recompute()

boolean19 = doc.addObject("PartDesign::Boolean", "Boolean018")
body21.addObject(boolean19)
boolean19.Type = "Cut"
boolean19.addObjects([body20])
body22 = doc.addObject("PartDesign::Body", "Body021")
body22.AllowCompound = True
doc.recompute()

body21.Placement = App.Placement(V(0, 0, -22), App.Rotation(V(0, 0, 1), 0))
boolean20 = doc.addObject("PartDesign::Boolean", "Boolean019")
body22.addObject(boolean20)
boolean20.Type = "Fuse"
boolean20.addObjects([body21])
doc.recompute()

fillet = doc.addObject("PartDesign::Fillet", "Fillet")
body22.addObject(fillet)
fillet.Base = (boolean20, edges_at(boolean20, [
    (-8, -3, -1),
    (-8, 59, -1),
    (45, -3, -1),
    (45, 59, -1),
]))
fillet.Radius = 3
body23 = doc.addObject("PartDesign::Body", "Body022")

# Sketch on XY plane
sketch15 = doc.addObject("Sketcher::SketchObject", "Sketch014")
body23.addObject(sketch15)
sketch15.AttachmentSupport = (doc.getObject("XY_Plane022"), [""])
sketch15.MapMode = "FlatFace"
sketch15.addGeometry(Part.LineSegment(V(-2.22, 59.76, 0), V(-2.22, -3.08, 0)), False)
sketch15.addGeometry(Part.LineSegment(V(-2.22, -3.08, 0), V(38.49, -3.08, 0)), False)
sketch15.addGeometry(Part.LineSegment(V(38.49, -3.08, 0), V(45.010048, 28.539799, 0)), False)
sketch15.addGeometry(Part.LineSegment(V(45.010048, 28.539799, 0), V(36.908657, 47.508923, 0)), False)
sketch15.addGeometry(Part.LineSegment(V(36.908657, 47.508923, 0), V(23.274607, 59.76, 0)), False)
sketch15.addGeometry(Part.LineSegment(V(23.274607, 59.76, 0), V(-2.22, 59.76, 0)), False)
sketch15.addGeometry(Part.LineSegment(V(21.78, 17.76, 0), V(0.78, 17.76, 0)), False)
sketch15.addGeometry(Part.LineSegment(V(0.78, 17.76, 0), V(0.78, 49.76, 0)), False)
sketch15.addGeometry(Part.LineSegment(V(0.78, 49.76, 0), V(21.78, 49.76, 0)), False)
sketch15.addGeometry(Part.LineSegment(V(21.78, 49.76, 0), V(21.78, 17.76, 0)), False)
sketch15.addConstraint(Sketcher.Constraint("Coincident", 0, 2, 1, 1))
sketch15.addConstraint(Sketcher.Constraint("Coincident", 1, 2, 2, 1))
sketch15.addConstraint(Sketcher.Constraint("Coincident", 2, 2, 3, 1))
sketch15.addConstraint(Sketcher.Constraint("Coincident", 3, 2, 4, 1))
sketch15.addConstraint(Sketcher.Constraint("Coincident", 4, 2, 5, 1))
sketch15.addConstraint(Sketcher.Constraint("Coincident", 5, 2, 0, 1))
sketch15.addConstraint(Sketcher.Constraint("Coincident", 6, 2, 7, 1))
sketch15.addConstraint(Sketcher.Constraint("Coincident", 7, 2, 8, 1))
sketch15.addConstraint(Sketcher.Constraint("Coincident", 8, 2, 9, 1))
sketch15.addConstraint(Sketcher.Constraint("Coincident", 9, 2, 6, 1))
sketch15.addConstraint(Sketcher.Constraint("Vertical", 0))
sketch15.addConstraint(Sketcher.Constraint("Horizontal", 1))
sketch15.addConstraint(Sketcher.Constraint("Horizontal", 5))
sketch15.addConstraint(Sketcher.Constraint("Horizontal", 6))
sketch15.addConstraint(Sketcher.Constraint("Vertical", 7))
sketch15.addConstraint(Sketcher.Constraint("Horizontal", 8))
sketch15.addConstraint(Sketcher.Constraint("Vertical", 9))
sketch15.addConstraint(Sketcher.Constraint("DistanceX", 6, 2, 6, 1, Q("21 mm")))
sketch15.addConstraint(Sketcher.Constraint("DistanceY", 7, 1, 7, 2, Q("32 mm")))
sketch15.addConstraint(Sketcher.Constraint("DistanceX", 0, 2, 6, 2, Q("3 mm")))
sketch15.addConstraint(Sketcher.Constraint("DistanceY", 6, 2, 5, 2, Q("42 mm")))
sketch15.addConstraint(Sketcher.Constraint("DistanceX", 1, 1, 1, 2, Q("40.71 mm")))
sketch15.addConstraint(Sketcher.Constraint("DistanceY", 0, 2, 0, 1, Q("62.84 mm")))
sketch15.addConstraint(Sketcher.Constraint("DistanceX", 0, 2, -1, 1, Q("2.22 mm")))
sketch15.addConstraint(Sketcher.Constraint("DistanceY", 0, 2, -1, 1, Q("3.08 mm")))
sketch15.addConstraint(Sketcher.Constraint("DistanceY", -1, 1, 2, 2, Q("28.539799 mm")))
sketch15.addConstraint(Sketcher.Constraint("DistanceX", 5, 2, 5, 1, Q("25.494607 mm")))
sketch15.addConstraint(Sketcher.Constraint("DistanceX", 3, 2, 2, 2, Q("8.101391 mm")))
sketch15.addConstraint(Sketcher.Constraint("DistanceX", 4, 2, 3, 2, Q("13.63405 mm")))
sketch15.addConstraint(Sketcher.Constraint("Distance", 3, Q("20.626687 mm")))
pad11 = doc.addObject("PartDesign::Pad", "Pad010")
body23.addObject(pad11)
pad11.Profile = sketch15
pad11.Length = 2
body24 = doc.addObject("PartDesign::Body", "Body023")
doc.recompute()

body23.Placement = App.Placement(V(0, 0, -2), App.Rotation(V(0, 0, 1), 0))
boolean21 = doc.addObject("PartDesign::Boolean", "Boolean020")
body24.addObject(boolean21)
boolean21.Type = "Fuse"
boolean21.addObjects([body23])
doc.recompute()

boolean22 = doc.addObject("PartDesign::Boolean", "Boolean021")
body24.addObject(boolean22)
boolean22.Type = "Fuse"
boolean22.addObjects([body22])
body25 = doc.addObject("PartDesign::Body", "Body024")
doc.recompute()

body24.Placement = App.Placement(V(0, 0, 19), App.Rotation(V(0, 0, 1), 0))
boolean23 = doc.addObject("PartDesign::Boolean", "Boolean022")
body25.addObject(boolean23)
boolean23.Type = "Fuse"
boolean23.addObjects([body24])
doc.recompute()

boolean24 = doc.addObject("PartDesign::Boolean", "Boolean023")
body25.addObject(boolean24)
boolean24.Type = "Cut"
boolean24.addObjects([body18])

doc.recompute()
